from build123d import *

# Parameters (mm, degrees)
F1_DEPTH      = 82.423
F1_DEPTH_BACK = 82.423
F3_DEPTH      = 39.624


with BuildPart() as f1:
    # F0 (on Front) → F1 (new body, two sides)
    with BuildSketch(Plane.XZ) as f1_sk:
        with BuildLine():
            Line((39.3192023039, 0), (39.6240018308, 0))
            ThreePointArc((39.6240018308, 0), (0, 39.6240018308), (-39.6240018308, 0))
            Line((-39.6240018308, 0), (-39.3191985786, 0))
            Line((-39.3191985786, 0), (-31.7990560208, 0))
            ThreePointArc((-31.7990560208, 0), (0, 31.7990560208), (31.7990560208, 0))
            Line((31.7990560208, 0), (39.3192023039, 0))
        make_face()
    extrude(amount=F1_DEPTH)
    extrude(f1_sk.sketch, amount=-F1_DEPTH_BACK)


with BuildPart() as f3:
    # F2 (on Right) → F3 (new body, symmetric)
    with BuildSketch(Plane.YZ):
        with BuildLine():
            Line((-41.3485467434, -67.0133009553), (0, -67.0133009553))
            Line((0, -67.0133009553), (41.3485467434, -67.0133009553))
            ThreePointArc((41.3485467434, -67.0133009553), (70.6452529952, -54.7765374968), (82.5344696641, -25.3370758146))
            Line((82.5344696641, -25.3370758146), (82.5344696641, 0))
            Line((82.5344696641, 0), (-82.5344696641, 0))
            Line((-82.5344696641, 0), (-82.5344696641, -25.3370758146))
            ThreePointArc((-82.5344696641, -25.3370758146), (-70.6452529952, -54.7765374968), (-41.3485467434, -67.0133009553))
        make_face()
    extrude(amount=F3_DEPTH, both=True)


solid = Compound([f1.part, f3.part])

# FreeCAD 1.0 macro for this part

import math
import FreeCAD as App
import Part
import Sketcher
from FreeCAD import Vector
Q = App.Units.Quantity

doc = App.newDocument("Part")
params = doc.addObject("Spreadsheet::Sheet", "Params")
for row, (alias, value) in enumerate([
    ("sketch1_radius", "1.5600001 in"),
    ("pad1_length", "3.245 in"),
    ("pad1_length2", "3.245 in"),
    ("pad2_length", "3.12 in"),
], start=1):
    params.set(f"A{row}", alias)
    params.set(f"B{row}", "=" + value)
    params.setAlias(f"B{row}", alias)

body = doc.addObject("PartDesign::Body", "Body")

# Sketch on XZ plane
sketch1 = body.newObject("Sketcher::SketchObject", "Sketch")
sketch1.AttachmentSupport = (doc.getObject("XZ_Plane"), [""])
sketch1.MapMode = "FlatFace"
sketch1.addGeometry(Part.ArcOfCircle(Part.Circle(Vector(0, 0, 0), Vector(0, 0, 1), 40), math.radians(0), math.radians(180)), False)
sketch1.addGeometry(Part.LineSegment(Vector(-40, 0, 0), Vector(-32, 0, 0)), False)
sketch1.addGeometry(Part.ArcOfCircle(Part.Circle(Vector(0, 0, 0), Vector(0, 0, 1), 32), math.radians(0), math.radians(180)), False)
sketch1.addGeometry(Part.LineSegment(Vector(32, 0, 0), Vector(40, 0, 0)), False)
sketch1.addConstraint(Sketcher.Constraint("Coincident", 0, 2, 1, 1))
sketch1.addConstraint(Sketcher.Constraint("Coincident", 1, 2, 2, 2))
sketch1.addConstraint(Sketcher.Constraint("Coincident", 2, 1, 3, 1))
sketch1.addConstraint(Sketcher.Constraint("Coincident", 3, 2, 0, 1))
sketch1.addConstraint(Sketcher.Constraint("Horizontal", 1))
sketch1.addConstraint(Sketcher.Constraint("Horizontal", 3))
sketch1.addConstraint(Sketcher.Constraint("Coincident", 0, 3, -1, 1))
sketch1.addConstraint(Sketcher.Constraint("Coincident", 2, 3, -1, 1))
sketch1.addConstraint(Sketcher.Constraint("PointOnObject", 0, 2, -1))
sketch1.addConstraint(Sketcher.Constraint("PointOnObject", 2, 1, -1))
sketch1.addConstraint(Sketcher.Constraint("Radius", 0, Q("1.5600001 in")))
sketch1.addConstraint(Sketcher.Constraint("Radius", 2, Q("31.799056 mm")))
sketch1.setExpression("Constraints[10]", "Params.sketch1_radius")
pad1 = body.newObject("PartDesign::Pad", "Pad")
pad1.Profile = sketch1
pad1.Type = "TwoLengths"
pad1.setExpression("Length", "Params.pad1_length")
pad1.setExpression("Length2", "Params.pad1_length2")
body2 = doc.addObject("PartDesign::Body", "Body001")

# Sketch on YZ plane
sketch2 = body2.newObject("Sketcher::SketchObject", "Sketch001")
sketch2.AttachmentSupport = (doc.getObject("YZ_Plane001"), [""])
sketch2.MapMode = "FlatFace"
sketch2.addGeometry(Part.LineSegment(Vector(-41, -67, 0), Vector(41, -67, 0)), False)
sketch2.addGeometry(Part.ArcOfCircle(Part.Circle(Vector(41, -26, 0), Vector(0, 0, 1), 41), math.radians(-90), math.radians(1)), False)
sketch2.addGeometry(Part.LineSegment(Vector(83, -25, 0), Vector(83, 0, 0)), False)
sketch2.addGeometry(Part.LineSegment(Vector(83, 0, 0), Vector(-83, 0, 0)), False)
sketch2.addGeometry(Part.LineSegment(Vector(-83, 0, 0), Vector(-83, -25, 0)), False)
sketch2.addGeometry(Part.ArcOfCircle(Part.Circle(Vector(-41, -26, 0), Vector(0, 0, 1), 41), math.radians(179), math.radians(270)), False)
sketch2.addConstraint(Sketcher.Constraint("Tangent", 0, 2, 1, 1))
sketch2.addConstraint(Sketcher.Constraint("Coincident", 1, 2, 2, 1))
sketch2.addConstraint(Sketcher.Constraint("Coincident", 2, 2, 3, 1))
sketch2.addConstraint(Sketcher.Constraint("Coincident", 3, 2, 4, 1))
sketch2.addConstraint(Sketcher.Constraint("Coincident", 4, 2, 5, 1))
sketch2.addConstraint(Sketcher.Constraint("Tangent", 5, 2, 0, 1))
sketch2.addConstraint(Sketcher.Constraint("Horizontal", 0))
sketch2.addConstraint(Sketcher.Constraint("Vertical", 2))
sketch2.addConstraint(Sketcher.Constraint("Horizontal", 3))
sketch2.addConstraint(Sketcher.Constraint("Vertical", 4))
sketch2.addConstraint(Sketcher.Constraint("Equal", 1, 5))
sketch2.addConstraint(Sketcher.Constraint("Symmetric", 2, 2, 3, 2, -1, 1))
sketch2.addConstraint(Sketcher.Constraint("Horizontal", 1, 2, 4, 2))
sketch2.addConstraint(Sketcher.Constraint("Radius", 1, Q("41.188807 mm")))
sketch2.addConstraint(Sketcher.Constraint("DistanceX", 3, 2, 3, 1, Q("165.068939 mm")))
sketch2.addConstraint(Sketcher.Constraint("DistanceY", 0, 2, -1, 1, Q("67.013301 mm")))
sketch2.addConstraint(Sketcher.Constraint("DistanceX", 0, 1, 0, 2, Q("82.697093 mm")))
pad2 = body2.newObject("PartDesign::Pad", "Pad001")
pad2.Profile = sketch2
pad2.setExpression("Length", "Params.pad2_length")
pad2.Midplane = True

doc.recompute()
